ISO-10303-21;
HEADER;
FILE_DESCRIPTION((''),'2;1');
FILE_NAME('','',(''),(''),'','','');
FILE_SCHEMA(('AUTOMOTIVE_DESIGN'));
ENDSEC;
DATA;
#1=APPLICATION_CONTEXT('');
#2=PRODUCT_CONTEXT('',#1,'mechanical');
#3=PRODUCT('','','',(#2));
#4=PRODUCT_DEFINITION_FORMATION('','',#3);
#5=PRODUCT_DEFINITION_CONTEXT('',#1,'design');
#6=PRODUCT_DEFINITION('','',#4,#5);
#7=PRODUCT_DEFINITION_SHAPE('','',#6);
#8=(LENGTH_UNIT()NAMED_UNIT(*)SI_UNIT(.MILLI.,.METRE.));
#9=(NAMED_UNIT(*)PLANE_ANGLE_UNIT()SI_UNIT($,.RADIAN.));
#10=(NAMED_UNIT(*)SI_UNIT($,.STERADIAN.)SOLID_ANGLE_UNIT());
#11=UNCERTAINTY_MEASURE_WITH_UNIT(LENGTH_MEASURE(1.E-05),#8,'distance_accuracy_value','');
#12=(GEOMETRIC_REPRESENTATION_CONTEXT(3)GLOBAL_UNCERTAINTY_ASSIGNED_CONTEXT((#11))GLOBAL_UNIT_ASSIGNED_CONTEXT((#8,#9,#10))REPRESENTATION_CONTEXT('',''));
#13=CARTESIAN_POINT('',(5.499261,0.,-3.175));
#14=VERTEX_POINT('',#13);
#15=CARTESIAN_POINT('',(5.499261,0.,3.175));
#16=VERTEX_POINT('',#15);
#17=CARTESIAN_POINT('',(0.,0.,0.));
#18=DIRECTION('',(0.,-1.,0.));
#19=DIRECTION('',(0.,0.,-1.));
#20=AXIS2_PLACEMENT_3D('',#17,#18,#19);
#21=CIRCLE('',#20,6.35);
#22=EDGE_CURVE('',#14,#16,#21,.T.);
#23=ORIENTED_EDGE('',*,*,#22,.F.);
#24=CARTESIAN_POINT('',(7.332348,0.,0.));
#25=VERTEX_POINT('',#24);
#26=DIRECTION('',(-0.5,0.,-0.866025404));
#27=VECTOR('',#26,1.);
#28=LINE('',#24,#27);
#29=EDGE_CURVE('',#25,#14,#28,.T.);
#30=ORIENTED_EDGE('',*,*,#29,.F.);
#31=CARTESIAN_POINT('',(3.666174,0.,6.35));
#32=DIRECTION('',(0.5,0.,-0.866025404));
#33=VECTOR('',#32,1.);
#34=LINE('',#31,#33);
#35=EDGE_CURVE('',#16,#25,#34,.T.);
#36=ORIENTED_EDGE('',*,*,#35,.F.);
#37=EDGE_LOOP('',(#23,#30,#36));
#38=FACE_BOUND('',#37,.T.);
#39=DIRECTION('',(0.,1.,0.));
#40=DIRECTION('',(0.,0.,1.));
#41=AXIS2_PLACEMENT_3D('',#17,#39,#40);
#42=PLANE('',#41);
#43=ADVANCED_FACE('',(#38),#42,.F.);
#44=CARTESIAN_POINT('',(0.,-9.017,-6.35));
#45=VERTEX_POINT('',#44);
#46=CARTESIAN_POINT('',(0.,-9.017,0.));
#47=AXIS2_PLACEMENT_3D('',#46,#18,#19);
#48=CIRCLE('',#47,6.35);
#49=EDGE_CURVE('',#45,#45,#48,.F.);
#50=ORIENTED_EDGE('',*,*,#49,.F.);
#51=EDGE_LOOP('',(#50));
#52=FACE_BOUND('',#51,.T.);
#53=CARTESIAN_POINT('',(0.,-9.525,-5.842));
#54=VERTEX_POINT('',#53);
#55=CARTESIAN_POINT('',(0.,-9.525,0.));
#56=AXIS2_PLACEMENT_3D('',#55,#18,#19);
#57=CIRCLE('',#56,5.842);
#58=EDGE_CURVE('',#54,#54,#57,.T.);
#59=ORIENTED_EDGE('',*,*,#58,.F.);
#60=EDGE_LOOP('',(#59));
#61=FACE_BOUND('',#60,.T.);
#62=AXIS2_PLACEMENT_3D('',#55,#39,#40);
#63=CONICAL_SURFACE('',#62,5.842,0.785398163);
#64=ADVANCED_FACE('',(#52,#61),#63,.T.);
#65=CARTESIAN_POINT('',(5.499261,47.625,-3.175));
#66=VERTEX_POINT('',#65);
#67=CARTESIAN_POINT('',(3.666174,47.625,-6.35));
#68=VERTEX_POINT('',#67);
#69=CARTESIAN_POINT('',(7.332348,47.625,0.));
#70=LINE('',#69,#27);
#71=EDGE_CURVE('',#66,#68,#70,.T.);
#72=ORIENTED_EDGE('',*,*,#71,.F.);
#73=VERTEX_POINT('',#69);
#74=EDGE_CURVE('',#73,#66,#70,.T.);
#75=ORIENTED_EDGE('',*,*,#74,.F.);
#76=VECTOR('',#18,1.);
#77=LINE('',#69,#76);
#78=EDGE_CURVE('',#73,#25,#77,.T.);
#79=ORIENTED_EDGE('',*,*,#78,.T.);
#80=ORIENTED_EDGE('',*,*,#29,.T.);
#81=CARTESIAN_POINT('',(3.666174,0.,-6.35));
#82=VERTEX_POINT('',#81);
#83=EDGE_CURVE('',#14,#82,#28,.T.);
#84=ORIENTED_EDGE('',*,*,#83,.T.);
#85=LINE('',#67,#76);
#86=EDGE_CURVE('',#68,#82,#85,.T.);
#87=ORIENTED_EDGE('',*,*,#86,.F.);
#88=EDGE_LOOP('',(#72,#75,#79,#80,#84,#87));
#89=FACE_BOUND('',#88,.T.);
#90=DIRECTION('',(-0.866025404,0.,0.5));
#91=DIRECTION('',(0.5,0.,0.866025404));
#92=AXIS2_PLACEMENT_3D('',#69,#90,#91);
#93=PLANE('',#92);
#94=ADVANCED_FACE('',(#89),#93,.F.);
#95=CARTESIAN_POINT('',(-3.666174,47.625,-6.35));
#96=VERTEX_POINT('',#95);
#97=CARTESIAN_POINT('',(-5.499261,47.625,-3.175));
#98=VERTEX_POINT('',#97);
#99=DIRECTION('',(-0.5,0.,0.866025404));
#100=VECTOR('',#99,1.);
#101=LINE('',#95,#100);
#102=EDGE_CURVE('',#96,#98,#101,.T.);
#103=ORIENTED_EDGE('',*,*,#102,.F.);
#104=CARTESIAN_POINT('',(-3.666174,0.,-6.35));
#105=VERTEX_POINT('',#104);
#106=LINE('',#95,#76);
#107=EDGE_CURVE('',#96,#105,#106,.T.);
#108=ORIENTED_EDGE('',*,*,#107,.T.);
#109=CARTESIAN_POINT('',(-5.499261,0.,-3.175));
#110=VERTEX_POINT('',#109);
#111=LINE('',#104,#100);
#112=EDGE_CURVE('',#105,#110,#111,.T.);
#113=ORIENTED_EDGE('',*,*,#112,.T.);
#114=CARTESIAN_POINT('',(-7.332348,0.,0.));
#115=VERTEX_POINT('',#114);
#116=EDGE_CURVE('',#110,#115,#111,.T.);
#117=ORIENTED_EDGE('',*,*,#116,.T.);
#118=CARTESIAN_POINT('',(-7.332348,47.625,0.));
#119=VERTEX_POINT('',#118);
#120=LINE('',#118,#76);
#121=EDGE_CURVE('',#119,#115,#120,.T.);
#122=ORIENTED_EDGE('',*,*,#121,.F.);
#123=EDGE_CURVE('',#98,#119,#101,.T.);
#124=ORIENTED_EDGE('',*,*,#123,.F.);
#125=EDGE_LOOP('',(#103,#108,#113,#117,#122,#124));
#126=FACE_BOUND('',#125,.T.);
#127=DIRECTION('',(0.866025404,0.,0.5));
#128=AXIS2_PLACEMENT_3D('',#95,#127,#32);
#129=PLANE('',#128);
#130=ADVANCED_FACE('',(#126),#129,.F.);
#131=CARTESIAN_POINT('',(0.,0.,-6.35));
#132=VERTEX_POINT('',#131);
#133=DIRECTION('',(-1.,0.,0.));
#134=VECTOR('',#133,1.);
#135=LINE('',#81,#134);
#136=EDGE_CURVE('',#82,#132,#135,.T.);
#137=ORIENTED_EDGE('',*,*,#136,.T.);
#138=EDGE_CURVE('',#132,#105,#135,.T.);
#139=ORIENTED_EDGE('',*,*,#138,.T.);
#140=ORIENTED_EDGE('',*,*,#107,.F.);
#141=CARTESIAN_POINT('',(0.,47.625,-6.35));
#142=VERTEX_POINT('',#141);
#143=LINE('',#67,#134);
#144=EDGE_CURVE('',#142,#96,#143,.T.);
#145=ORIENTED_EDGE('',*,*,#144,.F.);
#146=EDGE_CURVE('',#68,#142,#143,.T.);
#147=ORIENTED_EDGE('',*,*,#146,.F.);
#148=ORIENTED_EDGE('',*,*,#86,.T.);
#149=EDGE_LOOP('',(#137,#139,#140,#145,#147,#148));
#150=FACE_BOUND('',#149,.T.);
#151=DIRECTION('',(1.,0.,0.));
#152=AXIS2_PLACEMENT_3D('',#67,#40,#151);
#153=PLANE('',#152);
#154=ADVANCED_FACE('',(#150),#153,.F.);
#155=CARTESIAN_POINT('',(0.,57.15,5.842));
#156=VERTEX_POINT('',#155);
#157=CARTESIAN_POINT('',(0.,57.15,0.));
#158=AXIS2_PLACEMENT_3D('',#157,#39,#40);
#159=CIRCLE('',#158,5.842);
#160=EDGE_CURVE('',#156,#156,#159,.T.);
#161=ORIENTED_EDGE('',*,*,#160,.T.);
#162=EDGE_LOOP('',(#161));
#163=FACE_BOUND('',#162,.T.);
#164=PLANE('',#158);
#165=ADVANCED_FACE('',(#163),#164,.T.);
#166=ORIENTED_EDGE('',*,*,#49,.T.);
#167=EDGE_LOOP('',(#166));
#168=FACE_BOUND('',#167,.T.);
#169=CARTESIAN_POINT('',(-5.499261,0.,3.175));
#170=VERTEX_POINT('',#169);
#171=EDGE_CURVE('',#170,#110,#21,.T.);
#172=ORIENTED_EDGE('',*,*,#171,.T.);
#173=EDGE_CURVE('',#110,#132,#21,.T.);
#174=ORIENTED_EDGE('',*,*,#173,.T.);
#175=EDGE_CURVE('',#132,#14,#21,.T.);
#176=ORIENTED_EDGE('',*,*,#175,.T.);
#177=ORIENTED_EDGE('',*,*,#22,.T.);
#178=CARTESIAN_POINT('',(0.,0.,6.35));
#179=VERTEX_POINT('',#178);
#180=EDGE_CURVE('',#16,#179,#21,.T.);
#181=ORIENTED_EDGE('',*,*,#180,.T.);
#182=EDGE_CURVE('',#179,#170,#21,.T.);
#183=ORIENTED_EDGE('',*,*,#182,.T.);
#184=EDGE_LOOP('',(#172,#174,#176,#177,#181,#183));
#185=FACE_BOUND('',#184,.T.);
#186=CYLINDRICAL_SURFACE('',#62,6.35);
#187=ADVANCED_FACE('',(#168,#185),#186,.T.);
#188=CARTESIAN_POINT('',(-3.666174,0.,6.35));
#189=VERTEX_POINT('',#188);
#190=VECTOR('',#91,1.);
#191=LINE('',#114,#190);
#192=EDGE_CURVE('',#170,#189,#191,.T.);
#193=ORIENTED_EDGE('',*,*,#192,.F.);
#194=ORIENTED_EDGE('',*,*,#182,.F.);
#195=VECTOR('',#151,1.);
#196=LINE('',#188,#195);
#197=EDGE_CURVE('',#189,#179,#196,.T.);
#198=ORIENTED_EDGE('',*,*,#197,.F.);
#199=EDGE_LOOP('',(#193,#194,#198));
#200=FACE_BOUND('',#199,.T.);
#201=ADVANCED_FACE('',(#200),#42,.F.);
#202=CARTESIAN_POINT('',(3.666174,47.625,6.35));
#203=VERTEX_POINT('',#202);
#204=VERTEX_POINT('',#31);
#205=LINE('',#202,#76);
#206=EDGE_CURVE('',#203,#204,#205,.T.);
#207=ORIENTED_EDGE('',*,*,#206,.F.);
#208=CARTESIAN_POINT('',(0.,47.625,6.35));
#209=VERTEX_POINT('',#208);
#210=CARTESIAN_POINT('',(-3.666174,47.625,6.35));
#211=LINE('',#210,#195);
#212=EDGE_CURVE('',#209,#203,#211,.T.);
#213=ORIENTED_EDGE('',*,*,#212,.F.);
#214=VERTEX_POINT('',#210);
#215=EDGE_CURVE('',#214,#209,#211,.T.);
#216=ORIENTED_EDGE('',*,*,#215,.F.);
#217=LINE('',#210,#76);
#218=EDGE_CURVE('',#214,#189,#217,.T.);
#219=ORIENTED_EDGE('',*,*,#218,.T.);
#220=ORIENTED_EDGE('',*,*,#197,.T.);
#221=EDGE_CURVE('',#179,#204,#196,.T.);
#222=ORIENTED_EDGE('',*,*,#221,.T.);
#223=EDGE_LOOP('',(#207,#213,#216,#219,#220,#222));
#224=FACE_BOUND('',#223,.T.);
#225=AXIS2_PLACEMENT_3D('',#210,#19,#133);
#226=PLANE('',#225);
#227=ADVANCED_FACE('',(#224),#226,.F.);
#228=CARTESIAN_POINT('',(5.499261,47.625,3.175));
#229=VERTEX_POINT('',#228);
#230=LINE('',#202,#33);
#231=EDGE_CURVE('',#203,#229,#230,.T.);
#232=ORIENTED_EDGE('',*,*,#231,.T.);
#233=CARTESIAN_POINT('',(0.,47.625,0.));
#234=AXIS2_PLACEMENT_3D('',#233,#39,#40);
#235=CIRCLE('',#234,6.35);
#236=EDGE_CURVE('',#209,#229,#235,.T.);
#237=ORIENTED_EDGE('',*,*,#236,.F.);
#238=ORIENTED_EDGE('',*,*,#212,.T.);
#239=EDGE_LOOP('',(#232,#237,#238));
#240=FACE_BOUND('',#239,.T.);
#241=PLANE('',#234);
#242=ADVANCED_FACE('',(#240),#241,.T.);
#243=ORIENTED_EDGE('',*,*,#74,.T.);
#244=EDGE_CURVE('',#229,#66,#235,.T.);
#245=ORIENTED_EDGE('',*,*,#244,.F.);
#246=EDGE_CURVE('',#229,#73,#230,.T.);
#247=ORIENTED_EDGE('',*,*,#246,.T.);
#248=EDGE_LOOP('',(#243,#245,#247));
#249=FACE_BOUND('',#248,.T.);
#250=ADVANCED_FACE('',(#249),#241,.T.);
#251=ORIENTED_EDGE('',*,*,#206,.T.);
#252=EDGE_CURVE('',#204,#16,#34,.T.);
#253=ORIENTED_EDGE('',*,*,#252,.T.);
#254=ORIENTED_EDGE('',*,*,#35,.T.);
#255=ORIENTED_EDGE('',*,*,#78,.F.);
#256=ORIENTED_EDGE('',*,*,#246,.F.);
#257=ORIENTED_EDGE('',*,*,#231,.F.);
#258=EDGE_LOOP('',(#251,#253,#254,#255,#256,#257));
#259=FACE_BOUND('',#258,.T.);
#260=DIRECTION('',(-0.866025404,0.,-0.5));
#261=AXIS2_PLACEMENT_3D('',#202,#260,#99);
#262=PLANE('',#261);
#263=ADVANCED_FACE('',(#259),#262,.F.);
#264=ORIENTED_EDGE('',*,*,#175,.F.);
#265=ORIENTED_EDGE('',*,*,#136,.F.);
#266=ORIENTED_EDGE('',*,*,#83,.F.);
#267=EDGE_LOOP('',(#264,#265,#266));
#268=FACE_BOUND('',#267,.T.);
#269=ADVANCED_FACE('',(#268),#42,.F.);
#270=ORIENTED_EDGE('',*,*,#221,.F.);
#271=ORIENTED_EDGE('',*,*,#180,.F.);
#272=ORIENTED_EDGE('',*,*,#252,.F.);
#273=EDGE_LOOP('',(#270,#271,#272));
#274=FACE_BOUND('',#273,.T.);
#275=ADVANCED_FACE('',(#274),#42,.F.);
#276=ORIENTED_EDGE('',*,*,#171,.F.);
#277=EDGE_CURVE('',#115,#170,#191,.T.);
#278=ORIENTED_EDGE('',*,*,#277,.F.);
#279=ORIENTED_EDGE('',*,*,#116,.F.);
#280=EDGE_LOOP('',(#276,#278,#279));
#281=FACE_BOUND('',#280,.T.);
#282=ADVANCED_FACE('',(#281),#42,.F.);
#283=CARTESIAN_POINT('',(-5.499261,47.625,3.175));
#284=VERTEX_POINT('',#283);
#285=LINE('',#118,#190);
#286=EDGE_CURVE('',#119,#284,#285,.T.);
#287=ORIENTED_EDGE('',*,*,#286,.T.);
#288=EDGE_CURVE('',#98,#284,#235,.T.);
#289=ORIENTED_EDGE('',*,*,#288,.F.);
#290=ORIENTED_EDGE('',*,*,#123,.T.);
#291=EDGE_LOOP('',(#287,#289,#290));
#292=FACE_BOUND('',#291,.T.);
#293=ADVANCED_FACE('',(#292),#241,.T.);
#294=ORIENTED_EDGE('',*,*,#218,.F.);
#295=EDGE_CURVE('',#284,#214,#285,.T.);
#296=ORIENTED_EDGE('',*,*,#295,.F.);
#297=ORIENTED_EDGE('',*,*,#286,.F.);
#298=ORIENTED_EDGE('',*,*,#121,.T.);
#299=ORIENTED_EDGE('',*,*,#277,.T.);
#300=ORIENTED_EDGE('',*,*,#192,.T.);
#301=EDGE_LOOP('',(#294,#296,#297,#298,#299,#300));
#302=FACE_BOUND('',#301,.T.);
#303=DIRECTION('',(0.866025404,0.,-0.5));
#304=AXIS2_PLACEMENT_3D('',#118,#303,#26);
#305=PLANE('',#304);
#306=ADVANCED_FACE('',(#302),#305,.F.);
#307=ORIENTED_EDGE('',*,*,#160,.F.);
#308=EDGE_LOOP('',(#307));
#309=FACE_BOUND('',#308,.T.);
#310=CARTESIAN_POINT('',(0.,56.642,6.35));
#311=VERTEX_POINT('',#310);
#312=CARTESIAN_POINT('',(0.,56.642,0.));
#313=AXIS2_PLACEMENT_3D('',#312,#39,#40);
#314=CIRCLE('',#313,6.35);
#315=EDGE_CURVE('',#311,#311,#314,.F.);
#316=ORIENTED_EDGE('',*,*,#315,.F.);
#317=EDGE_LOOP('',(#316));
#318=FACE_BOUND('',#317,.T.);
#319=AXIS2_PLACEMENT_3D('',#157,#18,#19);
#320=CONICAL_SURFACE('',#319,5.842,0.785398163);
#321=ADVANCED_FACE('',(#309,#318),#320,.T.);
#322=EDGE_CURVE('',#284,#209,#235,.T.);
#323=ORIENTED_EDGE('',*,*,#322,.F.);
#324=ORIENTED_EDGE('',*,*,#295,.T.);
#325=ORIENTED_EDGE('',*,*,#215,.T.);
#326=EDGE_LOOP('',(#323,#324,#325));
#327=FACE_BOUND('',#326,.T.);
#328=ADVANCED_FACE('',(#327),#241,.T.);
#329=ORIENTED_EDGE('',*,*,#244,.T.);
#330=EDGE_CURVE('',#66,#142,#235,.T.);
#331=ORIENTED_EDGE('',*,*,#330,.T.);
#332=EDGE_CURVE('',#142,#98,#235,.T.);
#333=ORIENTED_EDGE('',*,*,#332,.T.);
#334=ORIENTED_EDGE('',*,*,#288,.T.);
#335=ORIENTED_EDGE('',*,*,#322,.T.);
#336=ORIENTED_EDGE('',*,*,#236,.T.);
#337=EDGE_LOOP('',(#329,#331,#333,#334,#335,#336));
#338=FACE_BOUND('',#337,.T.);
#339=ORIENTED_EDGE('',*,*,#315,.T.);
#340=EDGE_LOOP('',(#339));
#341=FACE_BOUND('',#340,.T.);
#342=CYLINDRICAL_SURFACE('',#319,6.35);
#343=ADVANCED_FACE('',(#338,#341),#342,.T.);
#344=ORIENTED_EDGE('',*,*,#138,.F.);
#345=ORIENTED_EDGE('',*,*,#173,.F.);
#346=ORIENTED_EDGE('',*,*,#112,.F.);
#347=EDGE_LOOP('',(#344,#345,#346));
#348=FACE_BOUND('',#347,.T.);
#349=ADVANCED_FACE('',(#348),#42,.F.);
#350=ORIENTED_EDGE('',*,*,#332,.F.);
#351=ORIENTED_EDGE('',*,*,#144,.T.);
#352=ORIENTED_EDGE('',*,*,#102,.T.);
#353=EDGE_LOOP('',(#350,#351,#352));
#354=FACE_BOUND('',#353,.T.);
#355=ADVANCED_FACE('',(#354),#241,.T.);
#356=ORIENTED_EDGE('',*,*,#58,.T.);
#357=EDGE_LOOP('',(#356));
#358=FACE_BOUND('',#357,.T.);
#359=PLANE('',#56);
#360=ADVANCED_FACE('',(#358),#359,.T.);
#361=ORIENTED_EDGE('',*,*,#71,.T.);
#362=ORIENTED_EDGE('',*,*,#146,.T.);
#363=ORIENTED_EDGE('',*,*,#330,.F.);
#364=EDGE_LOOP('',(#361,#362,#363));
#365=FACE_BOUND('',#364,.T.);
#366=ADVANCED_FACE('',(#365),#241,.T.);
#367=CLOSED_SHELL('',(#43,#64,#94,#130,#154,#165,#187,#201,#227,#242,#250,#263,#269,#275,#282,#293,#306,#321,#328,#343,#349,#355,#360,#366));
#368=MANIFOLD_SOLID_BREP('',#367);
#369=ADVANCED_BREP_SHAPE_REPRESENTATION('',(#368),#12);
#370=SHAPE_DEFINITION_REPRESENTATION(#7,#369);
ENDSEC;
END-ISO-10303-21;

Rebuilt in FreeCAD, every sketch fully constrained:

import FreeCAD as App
import Part
import Sketcher
from FreeCAD import Vector
Q = App.Units.Quantity


def edges_at(feature, points):
    """Names of the edges that pass closest to the given points."""
    edges = feature.Shape.Edges
    near = lambda p: min(range(len(edges)), key=lambda i: edges[i].distToShape(Part.Vertex(*p))[0])
    return sorted({f"Edge{near(p) + 1}" for p in points})


def add_polygon(sketch, points):
    """Adds a closed chain of lines whose ends are joined by coincident constraints."""
    first, n = sketch.GeometryCount, len(points)
    for a, b in zip(points, points[1:] + points[:1]):
        sketch.addGeometry(Part.LineSegment(App.Vector(*a, 0), App.Vector(*b, 0)), False)
    for i in range(n):
        sketch.addConstraint(Sketcher.Constraint("Coincident", first + i, 2, first + (i + 1) % n, 1))

doc = App.newDocument("Part")
params = doc.addObject("Spreadsheet::Sheet", "Params")
for row, (alias, value) in enumerate([
    ("pad1_length", "1.875 in"),
    ("sketch2_diameter", "0.5 in"),
    ("pad2_length", "0.375 in"),
    ("sketch3_diameter", "0.5 in"),
    ("pad3_length", "0.375 in"),
    ("chamfer_size", "0.02 in"),
], start=1):
    params.set(f"A{row}", alias)
    params.set(f"B{row}", "=" + value)
    params.setAlias(f"B{row}", alias)

body = doc.addObject("PartDesign::Body", "Body")

# Sketch on XZ plane
sketch1 = body.newObject("Sketcher::SketchObject", "Sketch")
sketch1.AttachmentSupport = (doc.getObject("XZ_Plane"), [""])
sketch1.MapMode = "FlatFace"
add_polygon(sketch1, [(3.666174, 6.35), (7.332348, 0), (3.666174, -6.35), (-3.666174, -6.35), (-7.332348, 0), (-3.666174, 6.35)])  # lines 0-5
sketch1.addConstraint(Sketcher.Constraint("Horizontal", 2))
sketch1.addConstraint(Sketcher.Constraint("Horizontal", 5))
sketch1.addConstraint(Sketcher.Constraint("Symmetric", 0, 2, 3, 2, -1, 1))
sketch1.addConstraint(Sketcher.Constraint("Symmetric", 1, 2, 4, 2, -1, 1))
sketch1.addConstraint(Sketcher.Constraint("PointOnObject", 0, 2, -1))
sketch1.addConstraint(Sketcher.Constraint("Parallel", 0, 3))
sketch1.addConstraint(Sketcher.Constraint("Vertical", 2, 2, 4, 2))
sketch1.addConstraint(Sketcher.Constraint("Angle", 0, Q("-60 deg")))
sketch1.addConstraint(Sketcher.Constraint("DistanceY", 2, 2, 4, 2, Q("0.5 in")))
sketch1.addConstraint(Sketcher.Constraint("DistanceX", 2, 2, 2, 1, Q("7.332348 mm")))
pad1 = body.newObject("PartDesign::Pad", "Pad")
pad1.Profile = sketch1
pad1.setExpression("Length", "Params.pad1_length")
pad1.Reversed = True

# Sketch on XZ plane
sketch2 = body.newObject("Sketcher::SketchObject", "Sketch001")
sketch2.AttachmentSupport = (doc.getObject("XZ_Plane"), [""])
sketch2.MapMode = "FlatFace"
sketch2.addGeometry(Part.Circle(Vector(0, 0, 0), Vector(0, 0, 1), 6.35), False)
sketch2.addConstraint(Sketcher.Constraint("Coincident", 0, 3, -1, 1))
sketch2.addConstraint(Sketcher.Constraint("Diameter", 0, Q("0.5 in")))
sketch2.setExpression("Constraints[1]", "Params.sketch2_diameter")
pad2 = body.newObject("PartDesign::Pad", "Pad001")
pad2.Profile = sketch2
pad2.setExpression("Length", "Params.pad2_length")

# Sketch on XZ plane
sketch3 = body.newObject("Sketcher::SketchObject", "Sketch002")
sketch3.AttachmentSupport = (doc.getObject("XZ_Plane"), [""])
sketch3.MapMode = "FlatFace"
sketch3.AttachmentOffset = App.Placement(Vector(0, 0, -2.25 * 25.4), App.Rotation())
sketch3.addGeometry(Part.Circle(Vector(0, 0, 0), Vector(0, 0, 1), 6.35), False)
sketch3.addConstraint(Sketcher.Constraint("Coincident", 0, 3, -1, 1))
sketch3.addConstraint(Sketcher.Constraint("Diameter", 0, Q("0.5 in")))
sketch3.setExpression("Constraints[1]", "Params.sketch3_diameter")
pad3 = body.newObject("PartDesign::Pad", "Pad002")
pad3.Profile = sketch3
pad3.setExpression("Length", "Params.pad3_length")
doc.recompute()

chamfer = body.newObject("PartDesign::Chamfer", "Chamfer")
chamfer.Base = (pad3, edges_at(pad3, [(0, -9.525, 6.35), (0, 57.15, 6.35)]))
chamfer.setExpression("Size", "Params.chamfer_size")

doc.recompute()
